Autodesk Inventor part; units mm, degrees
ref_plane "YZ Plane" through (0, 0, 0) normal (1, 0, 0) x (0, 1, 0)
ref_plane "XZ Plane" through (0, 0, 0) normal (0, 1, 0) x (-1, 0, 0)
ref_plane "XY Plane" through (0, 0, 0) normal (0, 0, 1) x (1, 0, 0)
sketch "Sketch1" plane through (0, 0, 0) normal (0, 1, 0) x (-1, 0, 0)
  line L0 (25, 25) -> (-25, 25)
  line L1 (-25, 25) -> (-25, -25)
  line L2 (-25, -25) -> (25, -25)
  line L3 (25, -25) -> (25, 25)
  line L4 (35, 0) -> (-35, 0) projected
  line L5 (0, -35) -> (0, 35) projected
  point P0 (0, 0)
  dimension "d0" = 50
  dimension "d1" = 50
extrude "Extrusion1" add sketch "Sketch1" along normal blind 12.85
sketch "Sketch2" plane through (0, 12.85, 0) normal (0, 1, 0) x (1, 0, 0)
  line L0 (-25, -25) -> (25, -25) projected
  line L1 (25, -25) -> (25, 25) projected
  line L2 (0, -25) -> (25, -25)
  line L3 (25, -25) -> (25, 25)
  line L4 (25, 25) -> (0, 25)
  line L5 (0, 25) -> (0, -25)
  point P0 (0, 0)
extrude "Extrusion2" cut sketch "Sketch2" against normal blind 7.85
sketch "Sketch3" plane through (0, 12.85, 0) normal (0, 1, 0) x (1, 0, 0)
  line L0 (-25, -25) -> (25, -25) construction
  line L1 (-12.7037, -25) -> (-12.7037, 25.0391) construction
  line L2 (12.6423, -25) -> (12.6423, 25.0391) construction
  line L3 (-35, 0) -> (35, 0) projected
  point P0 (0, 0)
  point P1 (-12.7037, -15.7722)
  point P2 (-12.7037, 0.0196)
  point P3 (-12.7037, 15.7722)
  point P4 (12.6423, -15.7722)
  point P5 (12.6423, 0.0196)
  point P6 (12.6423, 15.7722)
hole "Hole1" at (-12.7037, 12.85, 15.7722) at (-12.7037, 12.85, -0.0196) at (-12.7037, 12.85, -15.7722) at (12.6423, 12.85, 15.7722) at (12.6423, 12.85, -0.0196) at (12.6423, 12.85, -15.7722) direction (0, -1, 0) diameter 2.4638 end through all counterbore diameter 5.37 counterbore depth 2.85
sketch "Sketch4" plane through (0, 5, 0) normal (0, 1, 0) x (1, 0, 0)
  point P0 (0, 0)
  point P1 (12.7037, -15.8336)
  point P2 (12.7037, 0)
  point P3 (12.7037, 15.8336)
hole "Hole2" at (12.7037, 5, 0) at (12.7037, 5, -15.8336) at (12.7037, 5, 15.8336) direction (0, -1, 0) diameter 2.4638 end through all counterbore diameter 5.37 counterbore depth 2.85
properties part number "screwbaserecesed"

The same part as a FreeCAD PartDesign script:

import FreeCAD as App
import Part
import Sketcher

V = App.Vector
Q = App.Units.Quantity

doc = App.newDocument("Part")
body = doc.addObject("PartDesign::Body", "Body")

# Sketch on XZ plane
sketch1 = doc.addObject("Sketcher::SketchObject", "Sketch")
body.addObject(sketch1)
sketch1.AttachmentSupport = (doc.XZ_Plane, [""])
sketch1.MapMode = "FlatFace"
sketch1.addGeometry([
    Part.LineSegment(V(-25, 25, 0), V(25, 25, 0)),
    Part.LineSegment(V(25, 25, 0), V(25, -25, 0)),
    Part.LineSegment(V(25, -25, 0), V(-25, -25, 0)),
    Part.LineSegment(V(-25, -25, 0), V(-25, 25, 0)),
], False)
sketch1.addConstraint([
    Sketcher.Constraint("Coincident", 0, 2, 1, 1),
    Sketcher.Constraint("Coincident", 1, 2, 2, 1),
    Sketcher.Constraint("Coincident", 2, 2, 3, 1),
    Sketcher.Constraint("Coincident", 3, 2, 0, 1),
    Sketcher.Constraint("Horizontal", 0),
    Sketcher.Constraint("Vertical", 1),
    Sketcher.Constraint("Horizontal", 2),
    Sketcher.Constraint("Vertical", 3),
    Sketcher.Constraint("Symmetric", 0, 2, 2, 2, -1, 1),
    Sketcher.Constraint("Equal", 2, 1),
    Sketcher.Constraint("DistanceX", 0, 1, 0, 2, Q("50 mm")),
])
pad1 = doc.addObject("PartDesign::Pad", "Pad")
body.addObject(pad1)
pad1.Profile = sketch1
pad1.Length = 12.85
pad1.Reversed = True

# Sketch on XZ plane
sketch2 = doc.addObject("Sketcher::SketchObject", "Sketch001")
body.addObject(sketch2)
sketch2.AttachmentSupport = (doc.XZ_Plane, [""])
sketch2.MapMode = "FlatFace"
sketch2.AttachmentOffset = App.Placement(V(0, 0, -12.85), App.Rotation())
sketch2.addGeometry([
    Part.LineSegment(V(0, -25, 0), V(0, 25, 0)),
    Part.LineSegment(V(0, 25, 0), V(25, 25, 0)),
    Part.LineSegment(V(25, 25, 0), V(25, -25, 0)),
    Part.LineSegment(V(25, -25, 0), V(0, -25, 0)),
], False)
sketch2.addConstraint([
    Sketcher.Constraint("Coincident", 0, 2, 1, 1),
    Sketcher.Constraint("Coincident", 1, 2, 2, 1),
    Sketcher.Constraint("Coincident", 2, 2, 3, 1),
    Sketcher.Constraint("Coincident", 3, 2, 0, 1),
    Sketcher.Constraint("Vertical", 0),
    Sketcher.Constraint("Horizontal", 1),
    Sketcher.Constraint("Vertical", 2),
    Sketcher.Constraint("Horizontal", 3),
    Sketcher.Constraint("Symmetric", 0, 2, 3, 2, -1, 1),
    Sketcher.Constraint("DistanceX", 1, 1, 1, 2, Q("25 mm")),
    Sketcher.Constraint("DistanceY", 0, 1, 0, 2, Q("50 mm")),
])
pocket1 = doc.addObject("PartDesign::Pocket", "Pocket")
body.addObject(pocket1)
pocket1.Profile = sketch2
pocket1.Length = 7.85
pocket1.Reversed = True

# Sketch on XZ plane
sketch3 = doc.addObject("Sketcher::SketchObject", "Sketch002")
body.addObject(sketch3)
sketch3.AttachmentSupport = (doc.XZ_Plane, [""])
sketch3.MapMode = "FlatFace"
sketch3.AttachmentOffset = App.Placement(V(0, 0, -12.85), App.Rotation())
sketch3.addGeometry([
    Part.Circle(V(-12.7037, 15.7722, 0), V(0, 0, 1), 1.2319),  # 0
    Part.Circle(V(-12.7037, -0.0196, 0), V(0, 0, 1), 1.2319),  # 1
    Part.Circle(V(-12.7037, -15.7722, 0), V(0, 0, 1), 1.2319),  # 2
    Part.Circle(V(12.6423, 15.7722, 0), V(0, 0, 1), 1.2319),  # 3
    Part.Circle(V(12.6423, -0.0196, 0), V(0, 0, 1), 1.2319),  # 4
    Part.Circle(V(12.6423, -15.7722, 0), V(0, 0, 1), 1.2319),  # 5
], False)
sketch3.addConstraint([
    Sketcher.Constraint("Equal", 0, 1),
    Sketcher.Constraint("Equal", 1, 2),
    Sketcher.Constraint("Equal", 2, 3),
    Sketcher.Constraint("Equal", 3, 4),
    Sketcher.Constraint("Equal", 4, 5),
    Sketcher.Constraint("Symmetric", 0, 3, 2, 3, -1),
    Sketcher.Constraint("Symmetric", 3, 3, 5, 3, -1),
    Sketcher.Constraint("Horizontal", 0, 3, 3, 3),
    Sketcher.Constraint("Horizontal", 1, 3, 4, 3),
    Sketcher.Constraint("Vertical", 0, 3, 1, 3),
    Sketcher.Constraint("Vertical", 3, 3, 4, 3),
    Sketcher.Constraint("Diameter", 0, Q("2.4638 mm")),
    Sketcher.Constraint("DistanceX", 0, 3, 3, 3, Q("25.346 mm")),
    Sketcher.Constraint("DistanceX", 0, 3, -1, 1, Q("12.7037 mm")),
    Sketcher.Constraint("DistanceY", -1, 1, 0, 3, Q("15.7722 mm")),
    Sketcher.Constraint("DistanceY", 1, 3, -1, 1, Q("0.0196 mm")),
])
doc.recompute()
hole = doc.addObject("PartDesign::Hole", "Hole")
body.addObject(hole)
hole.Profile = sketch3
hole.ThreadType = "None"
hole.Diameter = 2.4638
hole.DepthType = "ThroughAll"
hole.HoleCutType = "Counterbore"
hole.HoleCutDiameter = 5.37
hole.HoleCutDepth = 2.85
hole.Reversed = True

# Sketch on XZ plane
sketch4 = doc.addObject("Sketcher::SketchObject", "Sketch003")
body.addObject(sketch4)
sketch4.AttachmentSupport = (doc.XZ_Plane, [""])
sketch4.MapMode = "FlatFace"
sketch4.AttachmentOffset = App.Placement(V(0, 0, -5), App.Rotation())
sketch4.addGeometry([
    Part.Circle(V(12.7037, 0, 0), V(0, 0, 1), 1.2319),
    Part.Circle(V(12.7037, -15.8336, 0), V(0, 0, 1), 1.2319),
    Part.Circle(V(12.7037, 15.8336, 0), V(0, 0, 1), 1.2319),
], False)
sketch4.addConstraint([
    Sketcher.Constraint("Equal", 0, 1),
    Sketcher.Constraint("Equal", 1, 2),
    Sketcher.Constraint("Symmetric", 1, 3, 2, 3, -1),
    Sketcher.Constraint("PointOnObject", 0, 3, -1),
    Sketcher.Constraint("Vertical", 0, 3, 1, 3),
    Sketcher.Constraint("Diameter", 0, Q("2.4638 mm")),
    Sketcher.Constraint("DistanceX", -1, 1, 0, 3, Q("12.7037 mm")),
    Sketcher.Constraint("DistanceY", 1, 3, -1, 1, Q("15.8336 mm")),
])
doc.recompute()
hole2 = doc.addObject("PartDesign::Hole", "Hole001")
body.addObject(hole2)
hole2.Profile = sketch4
hole2.ThreadType = "None"
hole2.Diameter = 2.4638
hole2.DepthType = "ThroughAll"
hole2.HoleCutType = "Counterbore"
hole2.HoleCutDiameter = 5.37
hole2.HoleCutDepth = 2.85
hole2.Reversed = True

doc.recompute()
